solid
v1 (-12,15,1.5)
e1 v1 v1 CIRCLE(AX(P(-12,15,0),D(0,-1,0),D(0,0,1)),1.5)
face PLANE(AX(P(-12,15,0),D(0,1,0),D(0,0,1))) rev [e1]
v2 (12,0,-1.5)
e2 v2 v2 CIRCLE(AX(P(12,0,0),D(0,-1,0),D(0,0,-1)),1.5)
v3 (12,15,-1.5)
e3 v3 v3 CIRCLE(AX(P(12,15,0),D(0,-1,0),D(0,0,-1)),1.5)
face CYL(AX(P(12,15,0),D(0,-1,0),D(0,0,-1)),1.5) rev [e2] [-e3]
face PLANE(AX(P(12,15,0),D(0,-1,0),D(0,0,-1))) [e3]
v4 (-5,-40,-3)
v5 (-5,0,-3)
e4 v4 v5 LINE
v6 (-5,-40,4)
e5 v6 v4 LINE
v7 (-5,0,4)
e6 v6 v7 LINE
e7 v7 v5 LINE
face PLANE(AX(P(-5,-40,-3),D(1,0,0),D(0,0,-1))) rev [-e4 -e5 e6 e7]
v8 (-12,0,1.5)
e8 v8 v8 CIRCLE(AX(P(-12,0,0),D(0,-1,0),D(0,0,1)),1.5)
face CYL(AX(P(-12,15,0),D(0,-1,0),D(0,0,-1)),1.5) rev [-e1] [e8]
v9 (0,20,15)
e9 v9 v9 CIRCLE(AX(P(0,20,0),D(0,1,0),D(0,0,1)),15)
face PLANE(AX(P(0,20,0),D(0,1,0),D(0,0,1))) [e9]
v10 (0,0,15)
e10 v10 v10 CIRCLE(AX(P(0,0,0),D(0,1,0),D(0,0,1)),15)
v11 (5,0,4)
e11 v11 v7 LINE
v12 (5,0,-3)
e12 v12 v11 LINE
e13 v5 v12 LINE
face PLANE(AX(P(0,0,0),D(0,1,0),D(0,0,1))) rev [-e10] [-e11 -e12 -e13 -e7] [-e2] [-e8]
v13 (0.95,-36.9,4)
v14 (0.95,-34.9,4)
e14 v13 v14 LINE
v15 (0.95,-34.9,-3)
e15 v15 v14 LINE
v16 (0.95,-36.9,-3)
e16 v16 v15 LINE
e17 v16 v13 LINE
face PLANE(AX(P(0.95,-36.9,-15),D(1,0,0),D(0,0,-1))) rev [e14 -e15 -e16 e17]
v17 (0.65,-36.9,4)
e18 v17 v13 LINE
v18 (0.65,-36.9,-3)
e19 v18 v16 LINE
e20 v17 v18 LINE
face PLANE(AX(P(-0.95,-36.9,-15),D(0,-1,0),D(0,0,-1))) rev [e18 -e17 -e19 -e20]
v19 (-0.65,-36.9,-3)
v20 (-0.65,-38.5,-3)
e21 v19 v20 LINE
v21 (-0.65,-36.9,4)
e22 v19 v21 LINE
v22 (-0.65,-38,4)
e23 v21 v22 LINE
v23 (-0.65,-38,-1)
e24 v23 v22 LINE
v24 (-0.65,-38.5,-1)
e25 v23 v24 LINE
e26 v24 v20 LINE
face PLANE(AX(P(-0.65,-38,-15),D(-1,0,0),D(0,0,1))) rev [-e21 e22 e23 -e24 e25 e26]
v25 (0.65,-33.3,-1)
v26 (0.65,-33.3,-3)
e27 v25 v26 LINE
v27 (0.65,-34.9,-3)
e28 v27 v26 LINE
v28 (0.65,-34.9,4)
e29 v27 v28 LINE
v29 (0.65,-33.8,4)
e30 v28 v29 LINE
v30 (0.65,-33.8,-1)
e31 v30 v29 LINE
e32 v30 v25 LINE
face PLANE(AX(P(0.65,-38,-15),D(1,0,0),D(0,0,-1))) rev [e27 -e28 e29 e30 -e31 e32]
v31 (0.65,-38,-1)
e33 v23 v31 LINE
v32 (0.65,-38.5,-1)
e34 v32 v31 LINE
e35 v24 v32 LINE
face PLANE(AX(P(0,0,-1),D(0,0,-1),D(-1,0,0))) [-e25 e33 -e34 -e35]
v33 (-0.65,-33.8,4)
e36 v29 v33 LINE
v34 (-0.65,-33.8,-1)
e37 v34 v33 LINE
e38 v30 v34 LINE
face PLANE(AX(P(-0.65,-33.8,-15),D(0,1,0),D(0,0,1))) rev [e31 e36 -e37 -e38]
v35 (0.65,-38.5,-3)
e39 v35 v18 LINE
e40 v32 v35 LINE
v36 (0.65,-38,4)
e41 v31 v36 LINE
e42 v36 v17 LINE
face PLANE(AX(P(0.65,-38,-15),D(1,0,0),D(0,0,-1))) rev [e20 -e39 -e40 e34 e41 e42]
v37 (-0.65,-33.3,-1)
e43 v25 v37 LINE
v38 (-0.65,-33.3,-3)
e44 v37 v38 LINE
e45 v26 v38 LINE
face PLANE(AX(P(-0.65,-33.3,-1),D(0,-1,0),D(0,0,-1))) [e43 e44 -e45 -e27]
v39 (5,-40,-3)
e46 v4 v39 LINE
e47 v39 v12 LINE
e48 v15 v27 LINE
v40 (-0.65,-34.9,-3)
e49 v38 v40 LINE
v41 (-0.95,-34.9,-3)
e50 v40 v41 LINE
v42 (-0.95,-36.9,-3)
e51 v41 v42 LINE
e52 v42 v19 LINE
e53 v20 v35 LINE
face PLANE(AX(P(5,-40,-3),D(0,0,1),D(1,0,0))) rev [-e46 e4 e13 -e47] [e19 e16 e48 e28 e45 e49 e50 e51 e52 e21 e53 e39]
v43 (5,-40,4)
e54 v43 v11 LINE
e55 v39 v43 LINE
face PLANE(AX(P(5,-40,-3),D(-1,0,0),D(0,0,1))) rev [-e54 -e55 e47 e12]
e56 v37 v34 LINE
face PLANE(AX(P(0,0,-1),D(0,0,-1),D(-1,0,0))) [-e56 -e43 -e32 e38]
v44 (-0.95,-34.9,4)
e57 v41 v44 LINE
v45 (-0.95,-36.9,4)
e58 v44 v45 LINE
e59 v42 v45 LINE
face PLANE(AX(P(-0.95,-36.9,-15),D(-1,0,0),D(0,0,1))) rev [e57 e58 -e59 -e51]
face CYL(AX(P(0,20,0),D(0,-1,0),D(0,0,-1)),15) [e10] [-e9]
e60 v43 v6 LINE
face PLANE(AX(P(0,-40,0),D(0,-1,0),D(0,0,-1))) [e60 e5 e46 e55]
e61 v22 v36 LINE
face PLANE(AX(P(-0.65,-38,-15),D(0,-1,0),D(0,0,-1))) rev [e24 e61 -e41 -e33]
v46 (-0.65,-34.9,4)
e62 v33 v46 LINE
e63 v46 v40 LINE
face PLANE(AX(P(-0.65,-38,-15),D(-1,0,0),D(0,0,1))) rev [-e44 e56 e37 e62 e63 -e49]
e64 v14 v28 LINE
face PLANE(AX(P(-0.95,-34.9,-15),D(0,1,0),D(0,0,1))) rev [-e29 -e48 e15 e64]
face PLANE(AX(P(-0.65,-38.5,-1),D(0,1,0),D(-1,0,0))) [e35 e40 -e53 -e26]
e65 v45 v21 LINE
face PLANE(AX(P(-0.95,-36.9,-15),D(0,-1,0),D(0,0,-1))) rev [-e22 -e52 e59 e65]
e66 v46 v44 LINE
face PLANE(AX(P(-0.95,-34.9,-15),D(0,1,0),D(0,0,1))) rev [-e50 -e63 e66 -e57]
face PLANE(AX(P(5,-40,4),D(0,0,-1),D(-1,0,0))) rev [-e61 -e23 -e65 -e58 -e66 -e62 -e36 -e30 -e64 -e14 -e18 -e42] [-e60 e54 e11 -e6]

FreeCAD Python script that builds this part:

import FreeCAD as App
import Part
import Sketcher

V = App.Vector
Q = App.Units.Quantity

doc = App.newDocument("Part")
params = doc.addObject("Spreadsheet::Sheet", "Params")
for row, (alias, value) in enumerate([
    ("sketch1_diameter", "30 mm"),
    ("pad1_length", "20 mm"),
    ("sketch2_diameter", "3 mm"),
    ("pocket1_length", "15 mm"),
    ("sketch3_width", "10 mm"),
    ("sketch3_height", "7 mm"),
    ("pad2_length", "40 mm"),
    ("sketch4_width", "1.3 mm"),
    ("sketch4_height", "4.2 mm"),
    ("sketch5_width", "1.3 mm"),
    ("sketch5_height", "5.2 mm"),
    ("pocket3_length", "2 mm"),
    ("sketch6_height", "2 mm"),
    ("sketch6_width", "1.9 mm"),
], start=1):
    params.set(f"A{row}", alias)
    params.set(f"B{row}", "=" + value)
    params.setAlias(f"B{row}", alias)

body = doc.addObject("PartDesign::Body", "Body")

# Sketch on XZ plane
sketch1 = doc.addObject("Sketcher::SketchObject", "Sketch")
body.addObject(sketch1)
sketch1.AttachmentSupport = (doc.XZ_Plane, [""])
sketch1.MapMode = "FlatFace"
sketch1.addGeometry(Part.Circle(V(0, 0, 0), V(0, 0, 1), 15), False)
sketch1.addConstraint([
    Sketcher.Constraint("Coincident", 0, 3, -1, 1),
    Sketcher.Constraint("Diameter", 0, Q("30 mm")),
])
sketch1.setExpression("Constraints[1]", "Params.sketch1_diameter")
pad1 = doc.addObject("PartDesign::Pad", "Pad")
body.addObject(pad1)
pad1.Profile = sketch1
pad1.setExpression("Length", "Params.pad1_length")
pad1.Reversed = True

# Sketch on XZ plane
sketch2 = doc.addObject("Sketcher::SketchObject", "Sketch001")
body.addObject(sketch2)
sketch2.AttachmentSupport = (doc.XZ_Plane, [""])
sketch2.MapMode = "FlatFace"
sketch2.addGeometry([
    Part.Circle(V(12, 0, 0), V(0, 0, 1), 1.5),
    Part.Circle(V(-12, 0, 0), V(0, 0, 1), 1.5),
], False)
sketch2.addConstraint([
    Sketcher.Constraint("Equal", 0, 1),
    Sketcher.Constraint("Symmetric", 0, 3, 1, 3, -1, 1),
    Sketcher.Constraint("PointOnObject", 0, 3, -1),
    Sketcher.Constraint("Diameter", 0, Q("3 mm")),
    Sketcher.Constraint("DistanceX", -1, 1, 0, 3, Q("12 mm")),
])
sketch2.setExpression("Constraints[3]", "Params.sketch2_diameter")
pocket1 = doc.addObject("PartDesign::Pocket", "Pocket")
body.addObject(pocket1)
pocket1.Profile = sketch2
pocket1.setExpression("Length", "Params.pocket1_length")

# Sketch on XZ plane
sketch3 = doc.addObject("Sketcher::SketchObject", "Sketch002")
body.addObject(sketch3)
sketch3.AttachmentSupport = (doc.XZ_Plane, [""])
sketch3.MapMode = "FlatFace"
sketch3.addGeometry([
    Part.LineSegment(V(-5, 4, 0), V(-5, -3, 0)),
    Part.LineSegment(V(-5, -3, 0), V(5, -3, 0)),
    Part.LineSegment(V(5, -3, 0), V(5, 4, 0)),
    Part.LineSegment(V(5, 4, 0), V(-5, 4, 0)),
], False)
sketch3.addConstraint([
    Sketcher.Constraint("Coincident", 0, 2, 1, 1),
    Sketcher.Constraint("Coincident", 1, 2, 2, 1),
    Sketcher.Constraint("Coincident", 2, 2, 3, 1),
    Sketcher.Constraint("Coincident", 3, 2, 0, 1),
    Sketcher.Constraint("Vertical", 0),
    Sketcher.Constraint("Horizontal", 1),
    Sketcher.Constraint("Vertical", 2),
    Sketcher.Constraint("Horizontal", 3),
    Sketcher.Constraint("DistanceX", 1, 1, 1, 2, Q("10 mm")),
    Sketcher.Constraint("DistanceY", 0, 2, 0, 1, Q("7 mm")),
    Sketcher.Constraint("DistanceX", 0, 2, -1, 1, Q("5 mm")),
    Sketcher.Constraint("DistanceY", 0, 2, -1, 1, Q("3 mm")),
])
sketch3.setExpression("Constraints[8]", "Params.sketch3_width")
sketch3.setExpression("Constraints[9]", "Params.sketch3_height")
pad2 = doc.addObject("PartDesign::Pad", "Pad001")
body.addObject(pad2)
pad2.Profile = sketch3
pad2.setExpression("Length", "Params.pad2_length")

# Sketch on XY plane
sketch4 = doc.addObject("Sketcher::SketchObject", "Sketch003")
body.addObject(sketch4)
sketch4.AttachmentSupport = (doc.XY_Plane, [""])
sketch4.MapMode = "FlatFace"
sketch4.AttachmentOffset = App.Placement(V(0, 0, 4), App.Rotation())
sketch4.addGeometry([
    Part.LineSegment(V(-0.7, -33.8, 0), V(-0.7, -38, 0)),
    Part.LineSegment(V(-0.7, -38, 0), V(0.7, -38, 0)),
    Part.LineSegment(V(0.7, -38, 0), V(0.7, -33.8, 0)),
    Part.LineSegment(V(0.7, -33.8, 0), V(-0.7, -33.8, 0)),
], False)
sketch4.addConstraint([
    Sketcher.Constraint("Coincident", 0, 2, 1, 1),
    Sketcher.Constraint("Coincident", 1, 2, 2, 1),
    Sketcher.Constraint("Coincident", 2, 2, 3, 1),
    Sketcher.Constraint("Coincident", 3, 2, 0, 1),
    Sketcher.Constraint("Vertical", 0),
    Sketcher.Constraint("Horizontal", 1),
    Sketcher.Constraint("Vertical", 2),
    Sketcher.Constraint("Horizontal", 3),
    Sketcher.Constraint("DistanceX", 1, 1, 1, 2, Q("1.3 mm")),
    Sketcher.Constraint("DistanceY", 0, 2, 0, 1, Q("4.2 mm")),
    Sketcher.Constraint("DistanceY", 0, 2, -1, 1, Q("38 mm")),
    Sketcher.Constraint("DistanceX", 0, 2, -1, 1, Q("0.65 mm")),
])
sketch4.setExpression("Constraints[8]", "Params.sketch4_width")
sketch4.setExpression("Constraints[9]", "Params.sketch4_height")
pocket2 = doc.addObject("PartDesign::Pocket", "Pocket001")
body.addObject(pocket2)
pocket2.Profile = sketch4
pocket2.Type = "ThroughAll"

# Sketch on XY plane
sketch5 = doc.addObject("Sketcher::SketchObject", "Sketch004")
body.addObject(sketch5)
sketch5.AttachmentSupport = (doc.XY_Plane, [""])
sketch5.MapMode = "FlatFace"
sketch5.AttachmentOffset = App.Placement(V(0, 0, -3), App.Rotation())
sketch5.addGeometry([
    Part.LineSegment(V(-0.7, -33.3, 0), V(-0.7, -38.5, 0)),
    Part.LineSegment(V(-0.7, -38.5, 0), V(0.7, -38.5, 0)),
    Part.LineSegment(V(0.7, -38.5, 0), V(0.7, -33.3, 0)),
    Part.LineSegment(V(0.7, -33.3, 0), V(-0.7, -33.3, 0)),
], False)
sketch5.addConstraint([
    Sketcher.Constraint("Coincident", 0, 2, 1, 1),
    Sketcher.Constraint("Coincident", 1, 2, 2, 1),
    Sketcher.Constraint("Coincident", 2, 2, 3, 1),
    Sketcher.Constraint("Coincident", 3, 2, 0, 1),
    Sketcher.Constraint("Vertical", 0),
    Sketcher.Constraint("Horizontal", 1),
    Sketcher.Constraint("Vertical", 2),
    Sketcher.Constraint("Horizontal", 3),
    Sketcher.Constraint("DistanceX", 1, 1, 1, 2, Q("1.3 mm")),
    Sketcher.Constraint("DistanceY", 0, 2, 0, 1, Q("5.2 mm")),
    Sketcher.Constraint("DistanceY", 0, 2, -1, 1, Q("38.5 mm")),
    Sketcher.Constraint("DistanceX", 0, 2, -1, 1, Q("0.65 mm")),
])
sketch5.setExpression("Constraints[8]", "Params.sketch5_width")
sketch5.setExpression("Constraints[9]", "Params.sketch5_height")
pocket3 = doc.addObject("PartDesign::Pocket", "Pocket002")
body.addObject(pocket3)
pocket3.Profile = sketch5
pocket3.setExpression("Length", "Params.pocket3_length")
pocket3.Reversed = True

# Sketch on XY plane
sketch6 = doc.addObject("Sketcher::SketchObject", "Sketch005")
body.addObject(sketch6)
sketch6.AttachmentSupport = (doc.XY_Plane, [""])
sketch6.MapMode = "FlatFace"
sketch6.AttachmentOffset = App.Placement(V(0, 0, 4), App.Rotation())
sketch6.addGeometry([
    Part.LineSegment(V(-0.9, -34.9, 0), V(-0.9, -36.9, 0)),
    Part.LineSegment(V(-0.9, -36.9, 0), V(0.9, -36.9, 0)),
    Part.LineSegment(V(0.9, -36.9, 0), V(0.9, -34.9, 0)),
    Part.LineSegment(V(0.9, -34.9, 0), V(-0.9, -34.9, 0)),
], False)
sketch6.addConstraint([
    Sketcher.Constraint("Coincident", 0, 2, 1, 1),
    Sketcher.Constraint("Coincident", 1, 2, 2, 1),
    Sketcher.Constraint("Coincident", 2, 2, 3, 1),
    Sketcher.Constraint("Coincident", 3, 2, 0, 1),
    Sketcher.Constraint("Vertical", 0),
    Sketcher.Constraint("Horizontal", 1),
    Sketcher.Constraint("Vertical", 2),
    Sketcher.Constraint("Horizontal", 3),
    Sketcher.Constraint("DistanceY", 0, 2, 0, 1, Q("2 mm")),
    Sketcher.Constraint("DistanceX", 1, 1, 1, 2, Q("1.9 mm")),
    Sketcher.Constraint("DistanceY", 0, 2, -1, 1, Q("36.9 mm")),
    Sketcher.Constraint("DistanceX", 0, 2, -1, 1, Q("0.95 mm")),
])
sketch6.setExpression("Constraints[8]", "Params.sketch6_height")
sketch6.setExpression("Constraints[9]", "Params.sketch6_width")
pocket4 = doc.addObject("PartDesign::Pocket", "Pocket003")
body.addObject(pocket4)
pocket4.Profile = sketch6
pocket4.Type = "ThroughAll"

doc.recompute()
